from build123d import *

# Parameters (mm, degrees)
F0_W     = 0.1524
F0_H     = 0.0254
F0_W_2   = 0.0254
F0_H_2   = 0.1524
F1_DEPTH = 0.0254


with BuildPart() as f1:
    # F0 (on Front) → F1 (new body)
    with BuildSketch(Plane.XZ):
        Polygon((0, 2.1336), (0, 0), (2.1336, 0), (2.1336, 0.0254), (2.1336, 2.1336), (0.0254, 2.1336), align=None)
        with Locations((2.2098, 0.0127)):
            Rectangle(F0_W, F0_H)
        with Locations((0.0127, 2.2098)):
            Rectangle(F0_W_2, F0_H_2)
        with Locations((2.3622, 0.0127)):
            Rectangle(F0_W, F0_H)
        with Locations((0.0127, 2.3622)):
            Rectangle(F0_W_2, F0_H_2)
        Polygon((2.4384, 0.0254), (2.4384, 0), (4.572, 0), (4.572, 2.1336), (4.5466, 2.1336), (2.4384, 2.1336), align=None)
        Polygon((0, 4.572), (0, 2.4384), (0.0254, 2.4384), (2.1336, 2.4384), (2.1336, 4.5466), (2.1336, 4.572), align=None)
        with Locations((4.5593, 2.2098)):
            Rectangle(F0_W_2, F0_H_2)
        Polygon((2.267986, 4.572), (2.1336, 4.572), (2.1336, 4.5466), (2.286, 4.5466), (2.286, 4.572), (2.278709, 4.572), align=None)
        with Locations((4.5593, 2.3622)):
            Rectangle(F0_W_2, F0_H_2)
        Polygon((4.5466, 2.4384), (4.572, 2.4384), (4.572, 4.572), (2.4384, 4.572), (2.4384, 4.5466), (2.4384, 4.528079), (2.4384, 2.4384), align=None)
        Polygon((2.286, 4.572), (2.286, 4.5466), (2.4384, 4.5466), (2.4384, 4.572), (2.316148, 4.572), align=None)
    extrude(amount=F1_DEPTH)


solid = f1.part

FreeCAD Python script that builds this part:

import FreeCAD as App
import Part
import Sketcher
Q = App.Units.Quantity


def add_polygon(sketch, points):
    """Adds a closed chain of lines whose ends are joined by coincident constraints."""
    first, n = sketch.GeometryCount, len(points)
    for a, b in zip(points, points[1:] + points[:1]):
        sketch.addGeometry(Part.LineSegment(App.Vector(*a, 0), App.Vector(*b, 0)), False)
    for i in range(n):
        sketch.addConstraint(Sketcher.Constraint("Coincident", first + i, 2, first + (i + 1) % n, 1))

doc = App.newDocument("Part")
body = doc.addObject("PartDesign::Body", "Body")

# Sketch on XZ plane
sketch1 = body.newObject("Sketcher::SketchObject", "Sketch")
sketch1.AttachmentSupport = (doc.getObject("XZ_Plane"), [""])
sketch1.MapMode = "FlatFace"
add_polygon(sketch1, [(0, 0), (4.57, 0), (4.57, 4.57), (0, 4.57)])  # lines 0-3
add_polygon(sketch1, [(2.44, 4.55), (2.44, 2.44), (4.55, 2.44), (4.55, 2.13), (2.44, 2.13), (2.44, 0.03), (2.13, 0.03), (2.13, 2.13), (0.03, 2.13), (0.03, 2.44), (2.13, 2.44), (2.13, 4.55)])  # lines 4-15
sketch1.addConstraint([
    Sketcher.Constraint("Horizontal", 0),
    Sketcher.Constraint("Vertical", 1),
    Sketcher.Constraint("Horizontal", 2),
    Sketcher.Constraint("Vertical", 3),
    Sketcher.Constraint("Vertical", 4),
    Sketcher.Constraint("Horizontal", 5),
    Sketcher.Constraint("Vertical", 6),
    Sketcher.Constraint("Horizontal", 7),
    Sketcher.Constraint("Vertical", 8),
    Sketcher.Constraint("Horizontal", 9),
    Sketcher.Constraint("Vertical", 10),
    Sketcher.Constraint("Horizontal", 11),
    Sketcher.Constraint("Vertical", 12),
    Sketcher.Constraint("Horizontal", 13),
    Sketcher.Constraint("Vertical", 14),
    Sketcher.Constraint("Horizontal", 15),
    Sketcher.Constraint("Coincident", 3, 2, -1, 1),
    Sketcher.Constraint("Horizontal", 7, 2, 10, 2),
    Sketcher.Constraint("Horizontal", 5, 2, 12, 2),
    Sketcher.Constraint("Vertical", 4, 2, 7, 2),
    Sketcher.Constraint("Vertical", 10, 2, 13, 2),
    Sketcher.Constraint("Equal", 7, 11),
    Sketcher.Constraint("Equal", 2, 1),
    Sketcher.Constraint("Equal", 13, 4),
    Sketcher.Constraint("Equal", 15, 6),
    Sketcher.Constraint("Equal", 4, 8),
    Sketcher.Constraint("DistanceX", 0, 1, 0, 2, Q("0.18 in")),
    Sketcher.Constraint("DistanceX", 5, 1, 5, 2, Q("0.083 in")),
    Sketcher.Constraint("DistanceX", 9, 2, 9, 1, Q("0.012 in")),
    Sketcher.Constraint("DistanceX", -1, 1, 4, 2, Q("0.096 in")),
    Sketcher.Constraint("DistanceY", -1, 1, 4, 2, Q("0.096 in")),
])
pad1 = body.newObject("PartDesign::Pad", "Pad")
pad1.Profile = sketch1
pad1.Length = Q("0.001 in")

doc.recompute()
